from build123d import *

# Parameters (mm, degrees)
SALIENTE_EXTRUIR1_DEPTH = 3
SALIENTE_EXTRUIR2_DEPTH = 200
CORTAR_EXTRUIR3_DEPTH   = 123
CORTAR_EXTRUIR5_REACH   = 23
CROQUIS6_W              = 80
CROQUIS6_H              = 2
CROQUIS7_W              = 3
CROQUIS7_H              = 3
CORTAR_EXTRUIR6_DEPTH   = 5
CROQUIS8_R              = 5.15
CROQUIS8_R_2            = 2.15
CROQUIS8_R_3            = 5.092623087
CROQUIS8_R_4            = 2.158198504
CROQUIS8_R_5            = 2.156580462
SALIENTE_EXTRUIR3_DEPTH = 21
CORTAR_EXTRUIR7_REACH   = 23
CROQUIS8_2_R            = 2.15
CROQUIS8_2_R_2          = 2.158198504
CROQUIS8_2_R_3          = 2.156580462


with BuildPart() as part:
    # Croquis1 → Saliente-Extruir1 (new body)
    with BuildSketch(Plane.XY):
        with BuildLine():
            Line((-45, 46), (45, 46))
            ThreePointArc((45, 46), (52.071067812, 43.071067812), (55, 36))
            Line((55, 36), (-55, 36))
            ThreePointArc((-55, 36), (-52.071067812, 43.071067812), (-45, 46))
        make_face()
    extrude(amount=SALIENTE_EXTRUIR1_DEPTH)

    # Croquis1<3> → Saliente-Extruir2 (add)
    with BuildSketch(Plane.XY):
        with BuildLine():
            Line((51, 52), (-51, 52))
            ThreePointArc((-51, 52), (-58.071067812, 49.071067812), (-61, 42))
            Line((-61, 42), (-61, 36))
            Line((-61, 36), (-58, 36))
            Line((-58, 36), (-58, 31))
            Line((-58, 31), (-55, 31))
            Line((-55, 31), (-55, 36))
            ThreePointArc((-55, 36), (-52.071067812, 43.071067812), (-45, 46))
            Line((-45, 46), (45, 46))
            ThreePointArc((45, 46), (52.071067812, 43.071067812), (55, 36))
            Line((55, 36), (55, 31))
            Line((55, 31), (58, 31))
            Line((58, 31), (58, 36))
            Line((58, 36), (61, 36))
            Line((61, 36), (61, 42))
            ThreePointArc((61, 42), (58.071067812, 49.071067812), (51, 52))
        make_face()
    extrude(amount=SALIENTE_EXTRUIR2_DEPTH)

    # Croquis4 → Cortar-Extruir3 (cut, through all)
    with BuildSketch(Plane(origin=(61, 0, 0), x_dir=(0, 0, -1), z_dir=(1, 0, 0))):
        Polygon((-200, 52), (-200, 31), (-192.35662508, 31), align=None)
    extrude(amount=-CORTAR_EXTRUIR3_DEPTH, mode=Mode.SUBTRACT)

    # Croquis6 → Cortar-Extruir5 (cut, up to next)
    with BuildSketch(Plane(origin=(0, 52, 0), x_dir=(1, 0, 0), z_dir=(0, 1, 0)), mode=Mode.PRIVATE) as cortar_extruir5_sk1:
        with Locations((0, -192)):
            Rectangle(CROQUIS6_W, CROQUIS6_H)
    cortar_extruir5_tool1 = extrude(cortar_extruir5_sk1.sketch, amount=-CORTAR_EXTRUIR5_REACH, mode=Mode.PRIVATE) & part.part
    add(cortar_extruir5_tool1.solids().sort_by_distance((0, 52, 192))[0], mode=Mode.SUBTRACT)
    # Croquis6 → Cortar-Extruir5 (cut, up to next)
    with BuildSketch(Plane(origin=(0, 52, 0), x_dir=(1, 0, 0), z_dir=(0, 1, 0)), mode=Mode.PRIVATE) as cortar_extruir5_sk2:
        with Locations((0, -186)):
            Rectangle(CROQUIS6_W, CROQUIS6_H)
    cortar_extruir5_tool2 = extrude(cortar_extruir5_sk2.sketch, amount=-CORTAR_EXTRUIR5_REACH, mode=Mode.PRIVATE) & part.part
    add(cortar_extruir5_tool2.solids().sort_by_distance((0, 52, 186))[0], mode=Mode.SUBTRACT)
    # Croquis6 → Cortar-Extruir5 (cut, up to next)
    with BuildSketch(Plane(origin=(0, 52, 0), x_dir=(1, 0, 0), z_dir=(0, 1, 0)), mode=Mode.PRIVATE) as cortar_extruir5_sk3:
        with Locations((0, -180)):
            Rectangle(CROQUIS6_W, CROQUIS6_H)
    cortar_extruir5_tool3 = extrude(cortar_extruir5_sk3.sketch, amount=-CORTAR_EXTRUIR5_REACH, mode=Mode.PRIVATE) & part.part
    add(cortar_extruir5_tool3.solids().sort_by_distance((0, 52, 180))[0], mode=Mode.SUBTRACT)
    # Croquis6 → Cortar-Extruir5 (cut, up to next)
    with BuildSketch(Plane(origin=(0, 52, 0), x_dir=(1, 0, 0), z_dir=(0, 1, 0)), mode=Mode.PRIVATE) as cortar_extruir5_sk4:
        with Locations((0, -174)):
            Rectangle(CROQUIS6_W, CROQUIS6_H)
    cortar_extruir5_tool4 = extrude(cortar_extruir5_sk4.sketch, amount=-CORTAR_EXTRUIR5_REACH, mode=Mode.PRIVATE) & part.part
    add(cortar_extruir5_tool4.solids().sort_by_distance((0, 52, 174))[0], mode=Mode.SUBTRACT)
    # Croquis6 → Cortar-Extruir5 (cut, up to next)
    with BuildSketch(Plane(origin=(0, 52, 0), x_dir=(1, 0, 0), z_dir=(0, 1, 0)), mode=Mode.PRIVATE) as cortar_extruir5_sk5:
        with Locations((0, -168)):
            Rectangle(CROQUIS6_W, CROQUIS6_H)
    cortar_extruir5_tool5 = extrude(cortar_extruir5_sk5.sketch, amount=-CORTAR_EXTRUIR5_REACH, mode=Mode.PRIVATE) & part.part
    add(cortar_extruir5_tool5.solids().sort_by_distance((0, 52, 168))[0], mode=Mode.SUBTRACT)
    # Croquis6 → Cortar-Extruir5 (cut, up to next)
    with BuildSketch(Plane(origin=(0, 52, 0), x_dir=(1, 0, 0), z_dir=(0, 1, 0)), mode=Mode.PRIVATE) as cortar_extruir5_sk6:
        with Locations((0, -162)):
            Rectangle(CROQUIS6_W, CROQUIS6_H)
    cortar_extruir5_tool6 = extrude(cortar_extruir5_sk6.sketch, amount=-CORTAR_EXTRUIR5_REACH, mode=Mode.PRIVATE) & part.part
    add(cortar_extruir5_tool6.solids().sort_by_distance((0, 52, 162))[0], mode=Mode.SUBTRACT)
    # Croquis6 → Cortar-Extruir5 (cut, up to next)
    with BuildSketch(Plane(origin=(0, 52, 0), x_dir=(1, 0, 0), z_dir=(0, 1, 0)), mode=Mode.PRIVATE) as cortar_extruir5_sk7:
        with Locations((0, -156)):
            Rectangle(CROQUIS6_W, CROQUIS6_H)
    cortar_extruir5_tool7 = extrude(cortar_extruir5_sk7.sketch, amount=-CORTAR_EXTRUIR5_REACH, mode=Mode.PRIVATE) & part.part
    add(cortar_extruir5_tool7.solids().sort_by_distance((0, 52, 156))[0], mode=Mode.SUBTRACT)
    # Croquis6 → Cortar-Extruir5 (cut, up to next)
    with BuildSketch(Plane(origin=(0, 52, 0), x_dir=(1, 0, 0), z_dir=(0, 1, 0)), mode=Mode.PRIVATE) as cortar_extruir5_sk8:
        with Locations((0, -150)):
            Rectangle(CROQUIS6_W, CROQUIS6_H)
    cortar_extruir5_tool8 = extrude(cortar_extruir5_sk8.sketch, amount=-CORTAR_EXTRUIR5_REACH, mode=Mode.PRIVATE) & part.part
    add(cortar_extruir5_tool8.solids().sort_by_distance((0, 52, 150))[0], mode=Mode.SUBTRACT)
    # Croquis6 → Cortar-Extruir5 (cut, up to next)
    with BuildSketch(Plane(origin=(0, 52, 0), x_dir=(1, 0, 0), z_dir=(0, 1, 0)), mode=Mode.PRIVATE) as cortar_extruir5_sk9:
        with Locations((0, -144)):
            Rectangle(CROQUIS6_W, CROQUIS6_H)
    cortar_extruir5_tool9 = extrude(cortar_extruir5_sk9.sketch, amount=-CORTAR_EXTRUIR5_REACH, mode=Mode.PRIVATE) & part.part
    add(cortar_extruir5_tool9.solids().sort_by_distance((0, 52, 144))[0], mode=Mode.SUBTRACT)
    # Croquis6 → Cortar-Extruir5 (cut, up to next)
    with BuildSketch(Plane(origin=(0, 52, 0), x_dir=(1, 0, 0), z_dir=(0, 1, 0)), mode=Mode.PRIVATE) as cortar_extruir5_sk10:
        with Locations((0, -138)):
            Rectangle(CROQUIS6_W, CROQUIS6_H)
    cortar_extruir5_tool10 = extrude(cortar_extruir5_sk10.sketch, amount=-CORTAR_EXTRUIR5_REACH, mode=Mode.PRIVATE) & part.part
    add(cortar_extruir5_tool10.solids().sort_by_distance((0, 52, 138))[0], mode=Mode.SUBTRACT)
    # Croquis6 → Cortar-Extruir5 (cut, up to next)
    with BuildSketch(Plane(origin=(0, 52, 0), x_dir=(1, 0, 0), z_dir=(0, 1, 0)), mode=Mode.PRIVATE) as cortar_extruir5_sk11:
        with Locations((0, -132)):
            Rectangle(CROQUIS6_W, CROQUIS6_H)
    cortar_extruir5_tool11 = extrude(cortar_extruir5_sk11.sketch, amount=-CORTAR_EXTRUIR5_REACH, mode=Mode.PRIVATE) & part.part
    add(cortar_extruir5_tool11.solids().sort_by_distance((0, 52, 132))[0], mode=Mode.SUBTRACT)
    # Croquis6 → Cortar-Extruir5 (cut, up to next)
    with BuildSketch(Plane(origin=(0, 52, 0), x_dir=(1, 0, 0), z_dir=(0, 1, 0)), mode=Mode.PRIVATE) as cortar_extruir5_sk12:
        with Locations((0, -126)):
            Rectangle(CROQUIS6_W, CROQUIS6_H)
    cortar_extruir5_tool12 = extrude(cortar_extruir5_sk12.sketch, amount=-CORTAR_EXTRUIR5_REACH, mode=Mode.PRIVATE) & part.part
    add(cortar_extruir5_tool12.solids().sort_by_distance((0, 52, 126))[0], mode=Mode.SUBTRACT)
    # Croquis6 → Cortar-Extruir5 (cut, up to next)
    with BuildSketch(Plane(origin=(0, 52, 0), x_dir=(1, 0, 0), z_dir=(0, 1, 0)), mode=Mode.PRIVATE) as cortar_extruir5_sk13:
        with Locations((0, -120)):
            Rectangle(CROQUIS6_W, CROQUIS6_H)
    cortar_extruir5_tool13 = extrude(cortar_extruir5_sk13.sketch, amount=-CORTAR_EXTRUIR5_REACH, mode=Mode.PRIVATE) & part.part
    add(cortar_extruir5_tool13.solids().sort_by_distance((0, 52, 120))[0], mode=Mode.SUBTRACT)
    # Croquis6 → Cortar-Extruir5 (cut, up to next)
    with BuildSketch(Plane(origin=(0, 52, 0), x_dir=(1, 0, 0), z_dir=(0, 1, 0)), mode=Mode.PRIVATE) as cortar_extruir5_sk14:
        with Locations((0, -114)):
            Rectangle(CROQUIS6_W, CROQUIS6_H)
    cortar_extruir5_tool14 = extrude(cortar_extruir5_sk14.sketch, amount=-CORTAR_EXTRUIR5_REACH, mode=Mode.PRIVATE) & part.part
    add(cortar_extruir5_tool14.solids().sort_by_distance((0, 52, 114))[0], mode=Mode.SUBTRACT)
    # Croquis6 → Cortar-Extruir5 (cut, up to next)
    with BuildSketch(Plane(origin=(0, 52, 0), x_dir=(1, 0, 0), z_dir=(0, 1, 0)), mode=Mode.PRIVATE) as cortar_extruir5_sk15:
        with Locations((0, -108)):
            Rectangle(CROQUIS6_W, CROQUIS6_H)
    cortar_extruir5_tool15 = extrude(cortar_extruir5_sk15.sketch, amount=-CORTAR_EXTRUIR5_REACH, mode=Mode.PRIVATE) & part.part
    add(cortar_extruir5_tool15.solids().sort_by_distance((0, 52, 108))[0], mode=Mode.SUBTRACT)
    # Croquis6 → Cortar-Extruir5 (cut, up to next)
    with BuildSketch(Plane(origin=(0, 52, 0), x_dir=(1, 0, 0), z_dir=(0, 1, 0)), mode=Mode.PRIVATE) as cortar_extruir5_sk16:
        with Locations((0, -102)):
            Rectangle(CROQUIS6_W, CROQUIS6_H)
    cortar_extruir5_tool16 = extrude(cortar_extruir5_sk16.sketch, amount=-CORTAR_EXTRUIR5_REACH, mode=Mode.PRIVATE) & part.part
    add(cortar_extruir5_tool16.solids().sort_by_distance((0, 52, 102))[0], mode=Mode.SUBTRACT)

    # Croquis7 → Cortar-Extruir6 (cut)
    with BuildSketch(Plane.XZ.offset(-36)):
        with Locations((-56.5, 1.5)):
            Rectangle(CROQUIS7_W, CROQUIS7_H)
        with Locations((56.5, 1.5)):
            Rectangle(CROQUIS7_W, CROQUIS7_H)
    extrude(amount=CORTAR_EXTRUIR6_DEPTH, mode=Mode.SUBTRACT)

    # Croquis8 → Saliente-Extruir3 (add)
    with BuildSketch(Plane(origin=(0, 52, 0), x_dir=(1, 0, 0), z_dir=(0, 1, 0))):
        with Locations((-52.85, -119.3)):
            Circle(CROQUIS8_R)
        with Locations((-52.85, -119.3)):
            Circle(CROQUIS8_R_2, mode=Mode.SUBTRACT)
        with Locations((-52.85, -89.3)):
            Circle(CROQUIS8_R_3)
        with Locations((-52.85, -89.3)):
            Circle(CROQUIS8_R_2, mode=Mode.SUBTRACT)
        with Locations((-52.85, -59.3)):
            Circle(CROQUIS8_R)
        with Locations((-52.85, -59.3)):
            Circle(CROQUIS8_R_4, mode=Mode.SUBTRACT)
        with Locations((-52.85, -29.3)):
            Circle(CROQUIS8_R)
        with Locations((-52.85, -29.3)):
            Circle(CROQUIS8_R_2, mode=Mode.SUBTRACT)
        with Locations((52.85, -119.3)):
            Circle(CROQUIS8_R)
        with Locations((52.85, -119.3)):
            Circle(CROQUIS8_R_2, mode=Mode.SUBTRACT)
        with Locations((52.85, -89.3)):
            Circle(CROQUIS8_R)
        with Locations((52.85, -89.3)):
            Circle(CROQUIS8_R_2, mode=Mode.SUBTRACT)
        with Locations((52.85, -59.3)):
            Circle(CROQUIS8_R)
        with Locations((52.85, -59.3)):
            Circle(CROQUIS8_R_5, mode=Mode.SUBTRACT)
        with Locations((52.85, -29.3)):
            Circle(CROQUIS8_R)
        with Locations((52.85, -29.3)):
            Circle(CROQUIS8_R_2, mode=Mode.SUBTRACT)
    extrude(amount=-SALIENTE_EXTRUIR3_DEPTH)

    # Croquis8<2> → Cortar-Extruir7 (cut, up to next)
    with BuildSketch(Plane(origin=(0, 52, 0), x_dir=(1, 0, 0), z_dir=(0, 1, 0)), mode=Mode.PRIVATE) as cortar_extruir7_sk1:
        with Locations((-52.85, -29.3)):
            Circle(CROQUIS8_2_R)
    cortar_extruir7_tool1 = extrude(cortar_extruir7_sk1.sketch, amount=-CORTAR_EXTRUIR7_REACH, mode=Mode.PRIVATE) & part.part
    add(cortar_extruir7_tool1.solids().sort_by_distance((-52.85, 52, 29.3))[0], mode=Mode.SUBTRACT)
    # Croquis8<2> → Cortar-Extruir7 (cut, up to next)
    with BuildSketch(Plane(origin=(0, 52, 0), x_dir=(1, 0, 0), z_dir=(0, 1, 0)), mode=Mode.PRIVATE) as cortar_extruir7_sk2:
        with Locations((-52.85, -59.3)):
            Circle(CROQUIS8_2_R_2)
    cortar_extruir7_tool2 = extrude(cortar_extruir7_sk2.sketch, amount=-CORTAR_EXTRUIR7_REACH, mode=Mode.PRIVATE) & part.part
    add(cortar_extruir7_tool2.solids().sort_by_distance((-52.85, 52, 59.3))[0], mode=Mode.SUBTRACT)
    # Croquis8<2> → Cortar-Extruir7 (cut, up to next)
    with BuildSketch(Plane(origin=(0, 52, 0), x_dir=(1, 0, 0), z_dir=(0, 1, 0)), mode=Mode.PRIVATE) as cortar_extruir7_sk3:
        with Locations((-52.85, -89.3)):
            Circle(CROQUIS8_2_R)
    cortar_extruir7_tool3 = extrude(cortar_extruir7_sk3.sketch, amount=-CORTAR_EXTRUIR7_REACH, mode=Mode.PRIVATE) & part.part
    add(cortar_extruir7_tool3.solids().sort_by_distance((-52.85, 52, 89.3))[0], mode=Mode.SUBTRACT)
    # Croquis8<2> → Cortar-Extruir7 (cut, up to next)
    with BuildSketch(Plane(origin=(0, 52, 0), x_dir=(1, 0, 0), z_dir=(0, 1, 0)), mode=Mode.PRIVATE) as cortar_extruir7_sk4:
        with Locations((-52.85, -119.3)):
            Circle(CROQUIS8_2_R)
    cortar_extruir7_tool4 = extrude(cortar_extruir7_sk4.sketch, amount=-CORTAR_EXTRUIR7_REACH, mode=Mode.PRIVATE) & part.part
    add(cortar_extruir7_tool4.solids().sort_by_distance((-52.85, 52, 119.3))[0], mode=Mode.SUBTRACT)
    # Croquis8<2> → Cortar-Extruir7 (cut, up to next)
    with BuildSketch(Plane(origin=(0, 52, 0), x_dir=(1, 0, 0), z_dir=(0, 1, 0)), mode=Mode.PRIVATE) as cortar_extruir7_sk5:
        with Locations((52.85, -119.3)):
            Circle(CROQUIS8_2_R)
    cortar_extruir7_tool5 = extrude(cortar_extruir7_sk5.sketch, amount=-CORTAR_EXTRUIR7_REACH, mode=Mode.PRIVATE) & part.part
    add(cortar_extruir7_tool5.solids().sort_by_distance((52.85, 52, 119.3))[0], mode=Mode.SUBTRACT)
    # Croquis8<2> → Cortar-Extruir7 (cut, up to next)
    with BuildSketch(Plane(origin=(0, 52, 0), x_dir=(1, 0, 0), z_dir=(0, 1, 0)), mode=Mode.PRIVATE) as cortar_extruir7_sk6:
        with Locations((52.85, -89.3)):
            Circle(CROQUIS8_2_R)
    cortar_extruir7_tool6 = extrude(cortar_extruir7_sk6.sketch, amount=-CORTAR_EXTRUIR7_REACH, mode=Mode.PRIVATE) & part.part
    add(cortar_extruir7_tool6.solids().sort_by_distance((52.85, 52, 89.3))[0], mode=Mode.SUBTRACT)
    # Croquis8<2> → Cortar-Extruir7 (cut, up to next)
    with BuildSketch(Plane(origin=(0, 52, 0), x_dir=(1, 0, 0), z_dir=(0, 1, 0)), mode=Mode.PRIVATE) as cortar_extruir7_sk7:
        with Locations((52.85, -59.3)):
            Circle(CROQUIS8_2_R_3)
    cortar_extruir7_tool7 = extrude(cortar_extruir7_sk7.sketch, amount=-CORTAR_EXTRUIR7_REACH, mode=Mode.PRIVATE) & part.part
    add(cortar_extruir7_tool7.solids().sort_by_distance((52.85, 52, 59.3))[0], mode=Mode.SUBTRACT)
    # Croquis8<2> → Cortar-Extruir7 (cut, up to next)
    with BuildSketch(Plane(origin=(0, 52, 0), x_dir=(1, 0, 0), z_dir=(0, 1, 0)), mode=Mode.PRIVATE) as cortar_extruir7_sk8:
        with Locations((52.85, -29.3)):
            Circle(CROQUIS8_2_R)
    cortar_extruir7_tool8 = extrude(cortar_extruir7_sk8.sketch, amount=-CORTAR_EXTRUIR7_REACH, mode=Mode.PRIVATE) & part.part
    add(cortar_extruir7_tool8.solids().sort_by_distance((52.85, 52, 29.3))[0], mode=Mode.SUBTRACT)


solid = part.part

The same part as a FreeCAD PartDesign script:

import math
import FreeCAD as App
import Part
import Sketcher
Q = App.Units.Quantity


def add_polygon(sketch, points):
    """Adds a closed chain of lines whose ends are joined by coincident constraints."""
    first, n = sketch.GeometryCount, len(points)
    for a, b in zip(points, points[1:] + points[:1]):
        sketch.addGeometry(Part.LineSegment(App.Vector(*a, 0), App.Vector(*b, 0)), False)
    for i in range(n):
        sketch.addConstraint(Sketcher.Constraint("Coincident", first + i, 2, first + (i + 1) % n, 1))

doc = App.newDocument("Part")
body = doc.addObject("PartDesign::Body", "Body")

# Sketch on XY plane
sketch1 = body.newObject("Sketcher::SketchObject", "Sketch")
sketch1.AttachmentSupport = (doc.getObject("XY_Plane"), [""])
sketch1.MapMode = "FlatFace"
sketch1.addGeometry([
    Part.LineSegment(App.Vector(45, 46, 0), App.Vector(-45, 46, 0)),
    Part.ArcOfCircle(Part.Circle(App.Vector(-45, 36, 0), App.Vector(0, 0, 1), 10), math.radians(90), math.radians(180)),
    Part.LineSegment(App.Vector(-55, 36, 0), App.Vector(55, 36, 0)),
    Part.ArcOfCircle(Part.Circle(App.Vector(45, 36, 0), App.Vector(0, 0, 1), 10), math.radians(0), math.radians(90)),
], False)
sketch1.addConstraint([
    Sketcher.Constraint("Tangent", 0, 2, 1, 1),
    Sketcher.Constraint("Coincident", 1, 2, 2, 1),
    Sketcher.Constraint("Coincident", 2, 2, 3, 1),
    Sketcher.Constraint("Tangent", 3, 2, 0, 1),
    Sketcher.Constraint("Horizontal", 0),
    Sketcher.Constraint("Horizontal", 2),
    Sketcher.Constraint("Equal", 1, 3),
    Sketcher.Constraint("Horizontal", 3, 3, 1, 2),
    Sketcher.Constraint("Radius", 1, Q("10 mm")),
    Sketcher.Constraint("DistanceX", 0, 2, 0, 1, Q("90 mm")),
    Sketcher.Constraint("DistanceX", 1, 3, -1, 1, Q("45 mm")),
    Sketcher.Constraint("DistanceY", -1, 1, 1, 3, Q("36 mm")),
])
pad1 = body.newObject("PartDesign::Pad", "Pad")
pad1.Profile = sketch1
pad1.Length = 3

# Sketch on XY plane
sketch2 = body.newObject("Sketcher::SketchObject", "Sketch001")
sketch2.AttachmentSupport = (doc.getObject("XY_Plane"), [""])
sketch2.MapMode = "FlatFace"
sketch2.addGeometry([
    Part.LineSegment(App.Vector(51, 52, 0), App.Vector(-51, 52, 0)),  # 0
    Part.ArcOfCircle(Part.Circle(App.Vector(-51, 42, 0), App.Vector(0, 0, 1), 10), math.radians(90), math.radians(180)),  # 1
    Part.LineSegment(App.Vector(-61, 42, 0), App.Vector(-61, 36, 0)),  # 2
    Part.LineSegment(App.Vector(-61, 36, 0), App.Vector(-58, 36, 0)),  # 3
    Part.LineSegment(App.Vector(-58, 36, 0), App.Vector(-58, 31, 0)),  # 4
    Part.LineSegment(App.Vector(-58, 31, 0), App.Vector(-55, 31, 0)),  # 5
    Part.LineSegment(App.Vector(-55, 31, 0), App.Vector(-55, 36, 0)),  # 6
    Part.ArcOfCircle(Part.Circle(App.Vector(-45, 36, 0), App.Vector(0, 0, 1), 10), math.radians(90), math.radians(180)),  # 7
    Part.LineSegment(App.Vector(-45, 46, 0), App.Vector(45, 46, 0)),  # 8
    Part.ArcOfCircle(Part.Circle(App.Vector(45, 36, 0), App.Vector(0, 0, 1), 10), math.radians(0), math.radians(90)),  # 9
    Part.LineSegment(App.Vector(55, 36, 0), App.Vector(55, 31, 0)),  # 10
    Part.LineSegment(App.Vector(55, 31, 0), App.Vector(58, 31, 0)),  # 11
    Part.LineSegment(App.Vector(58, 31, 0), App.Vector(58, 36, 0)),  # 12
    Part.LineSegment(App.Vector(58, 36, 0), App.Vector(61, 36, 0)),  # 13
    Part.LineSegment(App.Vector(61, 36, 0), App.Vector(61, 42, 0)),  # 14
    Part.ArcOfCircle(Part.Circle(App.Vector(51, 42, 0), App.Vector(0, 0, 1), 10), math.radians(0), math.radians(90)),  # 15
], False)
sketch2.addConstraint([
    Sketcher.Constraint("Tangent", 0, 2, 1, 1),
    Sketcher.Constraint("Tangent", 1, 2, 2, 1),
    Sketcher.Constraint("Coincident", 2, 2, 3, 1),
    Sketcher.Constraint("Coincident", 3, 2, 4, 1),
    Sketcher.Constraint("Coincident", 4, 2, 5, 1),
    Sketcher.Constraint("Coincident", 5, 2, 6, 1),
    Sketcher.Constraint("Tangent", 6, 2, 7, 2),
    Sketcher.Constraint("Tangent", 7, 1, 8, 1),
    Sketcher.Constraint("Tangent", 8, 2, 9, 2),
    Sketcher.Constraint("Tangent", 9, 1, 10, 1),
    Sketcher.Constraint("Coincident", 10, 2, 11, 1),
    Sketcher.Constraint("Coincident", 11, 2, 12, 1),
    Sketcher.Constraint("Coincident", 12, 2, 13, 1),
    Sketcher.Constraint("Coincident", 13, 2, 14, 1),
    Sketcher.Constraint("Tangent", 14, 2, 15, 1),
    Sketcher.Constraint("Tangent", 15, 2, 0, 1),
    Sketcher.Constraint("Horizontal", 0),
    Sketcher.Constraint("Vertical", 2),
    Sketcher.Constraint("Horizontal", 3),
    Sketcher.Constraint("Vertical", 4),
    Sketcher.Constraint("Horizontal", 5),
    Sketcher.Constraint("Vertical", 6),
    Sketcher.Constraint("Horizontal", 8),
    Sketcher.Constraint("Vertical", 10),
    Sketcher.Constraint("Horizontal", 11),
    Sketcher.Constraint("Vertical", 12),
    Sketcher.Constraint("Horizontal", 13),
    Sketcher.Constraint("Vertical", 14),
    Sketcher.Constraint("Equal", 1, 7),
    Sketcher.Constraint("Equal", 7, 9),
    Sketcher.Constraint("Equal", 9, 15),
    Sketcher.Constraint("Symmetric", 5, 2, 10, 2, -2),
    Sketcher.Constraint("Symmetric", 3, 2, 12, 2, -2),
    Sketcher.Constraint("Horizontal", 9, 3, 2, 2),
    Sketcher.Constraint("Equal", 3, 5),
    Sketcher.Constraint("Equal", 11, 13),
    Sketcher.Constraint("Radius", 1, Q("10 mm")),
    Sketcher.Constraint("DistanceX", 0, 2, 0, 1, Q("102 mm")),
    Sketcher.Constraint("DistanceX", 3, 1, 3, 2, Q("3 mm")),
    Sketcher.Constraint("DistanceY", 2, 2, 2, 1, Q("6 mm")),
    Sketcher.Constraint("DistanceY", 4, 2, 4, 1, Q("5 mm")),
    Sketcher.Constraint("DistanceY", -1, 1, 1, 3, Q("42 mm")),
])
pad2 = body.newObject("PartDesign::Pad", "Pad001")
pad2.Profile = sketch2
pad2.Length = 200

# Sketch on YZ plane
sketch3 = body.newObject("Sketcher::SketchObject", "Sketch002")
sketch3.AttachmentSupport = (doc.getObject("YZ_Plane"), [""])
sketch3.MapMode = "FlatFace"
sketch3.AttachmentOffset = App.Placement(App.Vector(0, 0, 61), App.Rotation())
add_polygon(sketch3, [(52, 200), (31, 200), (31, 192)])  # lines 0-2
sketch3.addConstraint([
    Sketcher.Constraint("Horizontal", 0),
    Sketcher.Constraint("Vertical", 1),
    Sketcher.Constraint("DistanceX", 0, 2, 0, 1, Q("21 mm")),
    Sketcher.Constraint("Angle", 2, Q("20 deg")),
    Sketcher.Constraint("DistanceX", -1, 1, 0, 2, Q("31 mm")),
    Sketcher.Constraint("DistanceY", -1, 1, 0, 2, Q("200 mm")),
])
pocket1 = body.newObject("PartDesign::Pocket", "Pocket")
pocket1.Profile = sketch3
pocket1.Type = "ThroughAll"

# Sketch on XZ plane
sketch4 = body.newObject("Sketcher::SketchObject", "Sketch003")
sketch4.AttachmentSupport = (doc.getObject("XZ_Plane"), [""])
sketch4.MapMode = "FlatFace"
sketch4.AttachmentOffset = App.Placement(App.Vector(0, 0, -52), App.Rotation())
add_polygon(sketch4, [(-40, 191), (-40, 193), (40, 193), (40, 191)])  # lines 0-3
sketch4.addConstraint([
    Sketcher.Constraint("Vertical", 0),
    Sketcher.Constraint("Horizontal", 1),
    Sketcher.Constraint("Vertical", 2),
    Sketcher.Constraint("Horizontal", 3),
    Sketcher.Constraint("DistanceX", 1, 1, 1, 2, Q("80 mm")),
    Sketcher.Constraint("DistanceY", 0, 1, 0, 2, Q("2 mm")),
    Sketcher.Constraint("DistanceX", 0, 2, -1, 1, Q("40 mm")),
    Sketcher.Constraint("DistanceY", -1, 1, 0, 2, Q("193 mm")),
])
pocket2 = body.newObject("PartDesign::Pocket", "Pocket001")
pocket2.Profile = sketch4
pocket2.Type = "UpToFirst"
pocket2.Reversed = True

# Sketch on XZ plane
sketch5 = body.newObject("Sketcher::SketchObject", "Sketch004")
sketch5.AttachmentSupport = (doc.getObject("XZ_Plane"), [""])
sketch5.MapMode = "FlatFace"
sketch5.AttachmentOffset = App.Placement(App.Vector(0, 0, -52), App.Rotation())
add_polygon(sketch5, [(-40, 185), (-40, 187), (40, 187), (40, 185)])  # lines 0-3
sketch5.addConstraint([
    Sketcher.Constraint("Vertical", 0),
    Sketcher.Constraint("Horizontal", 1),
    Sketcher.Constraint("Vertical", 2),
    Sketcher.Constraint("Horizontal", 3),
    Sketcher.Constraint("DistanceX", 1, 1, 1, 2, Q("80 mm")),
    Sketcher.Constraint("DistanceY", 0, 1, 0, 2, Q("2 mm")),
    Sketcher.Constraint("DistanceX", 0, 2, -1, 1, Q("40 mm")),
    Sketcher.Constraint("DistanceY", -1, 1, 0, 2, Q("187 mm")),
])
pocket3 = body.newObject("PartDesign::Pocket", "Pocket002")
pocket3.Profile = sketch5
pocket3.Type = "UpToFirst"
pocket3.Reversed = True

# Sketch on XZ plane
sketch6 = body.newObject("Sketcher::SketchObject", "Sketch005")
sketch6.AttachmentSupport = (doc.getObject("XZ_Plane"), [""])
sketch6.MapMode = "FlatFace"
sketch6.AttachmentOffset = App.Placement(App.Vector(0, 0, -52), App.Rotation())
add_polygon(sketch6, [(-40, 179), (-40, 181), (40, 181), (40, 179)])  # lines 0-3
sketch6.addConstraint([
    Sketcher.Constraint("Vertical", 0),
    Sketcher.Constraint("Horizontal", 1),
    Sketcher.Constraint("Vertical", 2),
    Sketcher.Constraint("Horizontal", 3),
    Sketcher.Constraint("DistanceX", 1, 1, 1, 2, Q("80 mm")),
    Sketcher.Constraint("DistanceY", 0, 1, 0, 2, Q("2 mm")),
    Sketcher.Constraint("DistanceX", 0, 2, -1, 1, Q("40 mm")),
    Sketcher.Constraint("DistanceY", -1, 1, 0, 2, Q("181 mm")),
])
pocket4 = body.newObject("PartDesign::Pocket", "Pocket003")
pocket4.Profile = sketch6
pocket4.Type = "UpToFirst"
pocket4.Reversed = True

# Sketch on XZ plane
sketch7 = body.newObject("Sketcher::SketchObject", "Sketch006")
sketch7.AttachmentSupport = (doc.getObject("XZ_Plane"), [""])
sketch7.MapMode = "FlatFace"
sketch7.AttachmentOffset = App.Placement(App.Vector(0, 0, -52), App.Rotation())
add_polygon(sketch7, [(-40, 173), (-40, 175), (40, 175), (40, 173)])  # lines 0-3
sketch7.addConstraint([
    Sketcher.Constraint("Vertical", 0),
    Sketcher.Constraint("Horizontal", 1),
    Sketcher.Constraint("Vertical", 2),
    Sketcher.Constraint("Horizontal", 3),
    Sketcher.Constraint("DistanceX", 1, 1, 1, 2, Q("80 mm")),
    Sketcher.Constraint("DistanceY", 0, 1, 0, 2, Q("2 mm")),
    Sketcher.Constraint("DistanceX", 0, 2, -1, 1, Q("40 mm")),
    Sketcher.Constraint("DistanceY", -1, 1, 0, 2, Q("175 mm")),
])
pocket5 = body.newObject("PartDesign::Pocket", "Pocket004")
pocket5.Profile = sketch7
pocket5.Type = "UpToFirst"
pocket5.Reversed = True

# Sketch on XZ plane
sketch8 = body.newObject("Sketcher::SketchObject", "Sketch007")
sketch8.AttachmentSupport = (doc.getObject("XZ_Plane"), [""])
sketch8.MapMode = "FlatFace"
sketch8.AttachmentOffset = App.Placement(App.Vector(0, 0, -52), App.Rotation())
add_polygon(sketch8, [(-40, 167), (-40, 169), (40, 169), (40, 167)])  # lines 0-3
sketch8.addConstraint([
    Sketcher.Constraint("Vertical", 0),
    Sketcher.Constraint("Horizontal", 1),
    Sketcher.Constraint("Vertical", 2),
    Sketcher.Constraint("Horizontal", 3),
    Sketcher.Constraint("DistanceX", 1, 1, 1, 2, Q("80 mm")),
    Sketcher.Constraint("DistanceY", 0, 1, 0, 2, Q("2 mm")),
    Sketcher.Constraint("DistanceX", 0, 2, -1, 1, Q("40 mm")),
    Sketcher.Constraint("DistanceY", -1, 1, 0, 2, Q("169 mm")),
])
pocket6 = body.newObject("PartDesign::Pocket", "Pocket005")
pocket6.Profile = sketch8
pocket6.Type = "UpToFirst"
pocket6.Reversed = True

# Sketch on XZ plane
sketch9 = body.newObject("Sketcher::SketchObject", "Sketch008")
sketch9.AttachmentSupport = (doc.getObject("XZ_Plane"), [""])
sketch9.MapMode = "FlatFace"
sketch9.AttachmentOffset = App.Placement(App.Vector(0, 0, -52), App.Rotation())
add_polygon(sketch9, [(-40, 161), (-40, 163), (40, 163), (40, 161)])  # lines 0-3
sketch9.addConstraint([
    Sketcher.Constraint("Vertical", 0),
    Sketcher.Constraint("Horizontal", 1),
    Sketcher.Constraint("Vertical", 2),
    Sketcher.Constraint("Horizontal", 3),
    Sketcher.Constraint("DistanceX", 1, 1, 1, 2, Q("80 mm")),
    Sketcher.Constraint("DistanceY", 0, 1, 0, 2, Q("2 mm")),
    Sketcher.Constraint("DistanceX", 0, 2, -1, 1, Q("40 mm")),
    Sketcher.Constraint("DistanceY", -1, 1, 0, 2, Q("163 mm")),
])
pocket7 = body.newObject("PartDesign::Pocket", "Pocket006")
pocket7.Profile = sketch9
pocket7.Type = "UpToFirst"
pocket7.Reversed = True

# Sketch on XZ plane
sketch10 = body.newObject("Sketcher::SketchObject", "Sketch009")
sketch10.AttachmentSupport = (doc.getObject("XZ_Plane"), [""])
sketch10.MapMode = "FlatFace"
sketch10.AttachmentOffset = App.Placement(App.Vector(0, 0, -52), App.Rotation())
add_polygon(sketch10, [(-40, 155), (-40, 157), (40, 157), (40, 155)])  # lines 0-3
sketch10.addConstraint([
    Sketcher.Constraint("Vertical", 0),
    Sketcher.Constraint("Horizontal", 1),
    Sketcher.Constraint("Vertical", 2),
    Sketcher.Constraint("Horizontal", 3),
    Sketcher.Constraint("DistanceX", 1, 1, 1, 2, Q("80 mm")),
    Sketcher.Constraint("DistanceY", 0, 1, 0, 2, Q("2 mm")),
    Sketcher.Constraint("DistanceX", 0, 2, -1, 1, Q("40 mm")),
    Sketcher.Constraint("DistanceY", -1, 1, 0, 2, Q("157 mm")),
])
pocket8 = body.newObject("PartDesign::Pocket", "Pocket007")
pocket8.Profile = sketch10
pocket8.Type = "UpToFirst"
pocket8.Reversed = True

# Sketch on XZ plane
sketch11 = body.newObject("Sketcher::SketchObject", "Sketch010")
sketch11.AttachmentSupport = (doc.getObject("XZ_Plane"), [""])
sketch11.MapMode = "FlatFace"
sketch11.AttachmentOffset = App.Placement(App.Vector(0, 0, -52), App.Rotation())
add_polygon(sketch11, [(-40, 149), (-40, 151), (40, 151), (40, 149)])  # lines 0-3
sketch11.addConstraint([
    Sketcher.Constraint("Vertical", 0),
    Sketcher.Constraint("Horizontal", 1),
    Sketcher.Constraint("Vertical", 2),
    Sketcher.Constraint("Horizontal", 3),
    Sketcher.Constraint("DistanceX", 1, 1, 1, 2, Q("80 mm")),
    Sketcher.Constraint("DistanceY", 0, 1, 0, 2, Q("2 mm")),
    Sketcher.Constraint("DistanceX", 0, 2, -1, 1, Q("40 mm")),
    Sketcher.Constraint("DistanceY", -1, 1, 0, 2, Q("151 mm")),
])
pocket9 = body.newObject("PartDesign::Pocket", "Pocket008")
pocket9.Profile = sketch11
pocket9.Type = "UpToFirst"
pocket9.Reversed = True

# Sketch on XZ plane
sketch12 = body.newObject("Sketcher::SketchObject", "Sketch011")
sketch12.AttachmentSupport = (doc.getObject("XZ_Plane"), [""])
sketch12.MapMode = "FlatFace"
sketch12.AttachmentOffset = App.Placement(App.Vector(0, 0, -52), App.Rotation())
add_polygon(sketch12, [(-40, 143), (-40, 145), (40, 145), (40, 143)])  # lines 0-3
sketch12.addConstraint([
    Sketcher.Constraint("Vertical", 0),
    Sketcher.Constraint("Horizontal", 1),
    Sketcher.Constraint("Vertical", 2),
    Sketcher.Constraint("Horizontal", 3),
    Sketcher.Constraint("DistanceX", 1, 1, 1, 2, Q("80 mm")),
    Sketcher.Constraint("DistanceY", 0, 1, 0, 2, Q("2 mm")),
    Sketcher.Constraint("DistanceX", 0, 2, -1, 1, Q("40 mm")),
    Sketcher.Constraint("DistanceY", -1, 1, 0, 2, Q("145 mm")),
])
pocket10 = body.newObject("PartDesign::Pocket", "Pocket009")
pocket10.Profile = sketch12
pocket10.Type = "UpToFirst"
pocket10.Reversed = True

# Sketch on XZ plane
sketch13 = body.newObject("Sketcher::SketchObject", "Sketch012")
sketch13.AttachmentSupport = (doc.getObject("XZ_Plane"), [""])
sketch13.MapMode = "FlatFace"
sketch13.AttachmentOffset = App.Placement(App.Vector(0, 0, -52), App.Rotation())
add_polygon(sketch13, [(-40, 137), (-40, 139), (40, 139), (40, 137)])  # lines 0-3
sketch13.addConstraint([
    Sketcher.Constraint("Vertical", 0),
    Sketcher.Constraint("Horizontal", 1),
    Sketcher.Constraint("Vertical", 2),
    Sketcher.Constraint("Horizontal", 3),
    Sketcher.Constraint("DistanceX", 1, 1, 1, 2, Q("80 mm")),
    Sketcher.Constraint("DistanceY", 0, 1, 0, 2, Q("2 mm")),
    Sketcher.Constraint("DistanceX", 0, 2, -1, 1, Q("40 mm")),
    Sketcher.Constraint("DistanceY", -1, 1, 0, 2, Q("139 mm")),
])
pocket11 = body.newObject("PartDesign::Pocket", "Pocket010")
pocket11.Profile = sketch13
pocket11.Type = "UpToFirst"
pocket11.Reversed = True

# Sketch on XZ plane
sketch14 = body.newObject("Sketcher::SketchObject", "Sketch013")
sketch14.AttachmentSupport = (doc.getObject("XZ_Plane"), [""])
sketch14.MapMode = "FlatFace"
sketch14.AttachmentOffset = App.Placement(App.Vector(0, 0, -52), App.Rotation())
add_polygon(sketch14, [(-40, 131), (-40, 133), (40, 133), (40, 131)])  # lines 0-3
sketch14.addConstraint([
    Sketcher.Constraint("Vertical", 0),
    Sketcher.Constraint("Horizontal", 1),
    Sketcher.Constraint("Vertical", 2),
    Sketcher.Constraint("Horizontal", 3),
    Sketcher.Constraint("DistanceX", 1, 1, 1, 2, Q("80 mm")),
    Sketcher.Constraint("DistanceY", 0, 1, 0, 2, Q("2 mm")),
    Sketcher.Constraint("DistanceX", 0, 2, -1, 1, Q("40 mm")),
    Sketcher.Constraint("DistanceY", -1, 1, 0, 2, Q("133 mm")),
])
pocket12 = body.newObject("PartDesign::Pocket", "Pocket011")
pocket12.Profile = sketch14
pocket12.Type = "UpToFirst"
pocket12.Reversed = True

# Sketch on XZ plane
sketch15 = body.newObject("Sketcher::SketchObject", "Sketch014")
sketch15.AttachmentSupport = (doc.getObject("XZ_Plane"), [""])
sketch15.MapMode = "FlatFace"
sketch15.AttachmentOffset = App.Placement(App.Vector(0, 0, -52), App.Rotation())
add_polygon(sketch15, [(-40, 125), (-40, 127), (40, 127), (40, 125)])  # lines 0-3
sketch15.addConstraint([
    Sketcher.Constraint("Vertical", 0),
    Sketcher.Constraint("Horizontal", 1),
    Sketcher.Constraint("Vertical", 2),
    Sketcher.Constraint("Horizontal", 3),
    Sketcher.Constraint("DistanceX", 1, 1, 1, 2, Q("80 mm")),
    Sketcher.Constraint("DistanceY", 0, 1, 0, 2, Q("2 mm")),
    Sketcher.Constraint("DistanceX", 0, 2, -1, 1, Q("40 mm")),
    Sketcher.Constraint("DistanceY", -1, 1, 0, 2, Q("127 mm")),
])
pocket13 = body.newObject("PartDesign::Pocket", "Pocket012")
pocket13.Profile = sketch15
pocket13.Type = "UpToFirst"
pocket13.Reversed = True

# Sketch on XZ plane
sketch16 = body.newObject("Sketcher::SketchObject", "Sketch015")
sketch16.AttachmentSupport = (doc.getObject("XZ_Plane"), [""])
sketch16.MapMode = "FlatFace"
sketch16.AttachmentOffset = App.Placement(App.Vector(0, 0, -52), App.Rotation())
add_polygon(sketch16, [(-40, 119), (-40, 121), (40, 121), (40, 119)])  # lines 0-3
sketch16.addConstraint([
    Sketcher.Constraint("Vertical", 0),
    Sketcher.Constraint("Horizontal", 1),
    Sketcher.Constraint("Vertical", 2),
    Sketcher.Constraint("Horizontal", 3),
    Sketcher.Constraint("DistanceX", 1, 1, 1, 2, Q("80 mm")),
    Sketcher.Constraint("DistanceY", 0, 1, 0, 2, Q("2 mm")),
    Sketcher.Constraint("DistanceX", 0, 2, -1, 1, Q("40 mm")),
    Sketcher.Constraint("DistanceY", -1, 1, 0, 2, Q("121 mm")),
])
pocket14 = body.newObject("PartDesign::Pocket", "Pocket013")
pocket14.Profile = sketch16
pocket14.Type = "UpToFirst"
pocket14.Reversed = True

# Sketch on XZ plane
sketch17 = body.newObject("Sketcher::SketchObject", "Sketch016")
sketch17.AttachmentSupport = (doc.getObject("XZ_Plane"), [""])
sketch17.MapMode = "FlatFace"
sketch17.AttachmentOffset = App.Placement(App.Vector(0, 0, -52), App.Rotation())
add_polygon(sketch17, [(-40, 113), (-40, 115), (40, 115), (40, 113)])  # lines 0-3
sketch17.addConstraint([
    Sketcher.Constraint("Vertical", 0),
    Sketcher.Constraint("Horizontal", 1),
    Sketcher.Constraint("Vertical", 2),
    Sketcher.Constraint("Horizontal", 3),
    Sketcher.Constraint("DistanceX", 1, 1, 1, 2, Q("80 mm")),
    Sketcher.Constraint("DistanceY", 0, 1, 0, 2, Q("2 mm")),
    Sketcher.Constraint("DistanceX", 0, 2, -1, 1, Q("40 mm")),
    Sketcher.Constraint("DistanceY", -1, 1, 0, 2, Q("115 mm")),
])
pocket15 = body.newObject("PartDesign::Pocket", "Pocket014")
pocket15.Profile = sketch17
pocket15.Type = "UpToFirst"
pocket15.Reversed = True

# Sketch on XZ plane
sketch18 = body.newObject("Sketcher::SketchObject", "Sketch017")
sketch18.AttachmentSupport = (doc.getObject("XZ_Plane"), [""])
sketch18.MapMode = "FlatFace"
sketch18.AttachmentOffset = App.Placement(App.Vector(0, 0, -52), App.Rotation())
add_polygon(sketch18, [(-40, 107), (-40, 109), (40, 109), (40, 107)])  # lines 0-3
sketch18.addConstraint([
    Sketcher.Constraint("Vertical", 0),
    Sketcher.Constraint("Horizontal", 1),
    Sketcher.Constraint("Vertical", 2),
    Sketcher.Constraint("Horizontal", 3),
    Sketcher.Constraint("DistanceX", 1, 1, 1, 2, Q("80 mm")),
    Sketcher.Constraint("DistanceY", 0, 1, 0, 2, Q("2 mm")),
    Sketcher.Constraint("DistanceX", 0, 2, -1, 1, Q("40 mm")),
    Sketcher.Constraint("DistanceY", -1, 1, 0, 2, Q("109 mm")),
])
pocket16 = body.newObject("PartDesign::Pocket", "Pocket015")
pocket16.Profile = sketch18
pocket16.Type = "UpToFirst"
pocket16.Reversed = True

# Sketch on XZ plane
sketch19 = body.newObject("Sketcher::SketchObject", "Sketch018")
sketch19.AttachmentSupport = (doc.getObject("XZ_Plane"), [""])
sketch19.MapMode = "FlatFace"
sketch19.AttachmentOffset = App.Placement(App.Vector(0, 0, -52), App.Rotation())
add_polygon(sketch19, [(-40, 101), (-40, 103), (40, 103), (40, 101)])  # lines 0-3
sketch19.addConstraint([
    Sketcher.Constraint("Vertical", 0),
    Sketcher.Constraint("Horizontal", 1),
    Sketcher.Constraint("Vertical", 2),
    Sketcher.Constraint("Horizontal", 3),
    Sketcher.Constraint("DistanceX", 1, 1, 1, 2, Q("80 mm")),
    Sketcher.Constraint("DistanceY", 0, 1, 0, 2, Q("2 mm")),
    Sketcher.Constraint("DistanceX", 0, 2, -1, 1, Q("40 mm")),
    Sketcher.Constraint("DistanceY", -1, 1, 0, 2, Q("103 mm")),
])
pocket17 = body.newObject("PartDesign::Pocket", "Pocket016")
pocket17.Profile = sketch19
pocket17.Type = "UpToFirst"
pocket17.Reversed = True

# Sketch on XZ plane
sketch20 = body.newObject("Sketcher::SketchObject", "Sketch019")
sketch20.AttachmentSupport = (doc.getObject("XZ_Plane"), [""])
sketch20.MapMode = "FlatFace"
sketch20.AttachmentOffset = App.Placement(App.Vector(0, 0, -36), App.Rotation())
add_polygon(sketch20, [(-58, 3), (-58, 0), (-55, 0), (-55, 3)])  # lines 0-3
add_polygon(sketch20, [(55, 3), (55, 0), (58, 0), (58, 3)])  # lines 4-7
sketch20.addConstraint([
    Sketcher.Constraint("Vertical", 0),
    Sketcher.Constraint("Horizontal", 1),
    Sketcher.Constraint("Vertical", 2),
    Sketcher.Constraint("Horizontal", 3),
    Sketcher.Constraint("Vertical", 4),
    Sketcher.Constraint("Horizontal", 5),
    Sketcher.Constraint("Vertical", 6),
    Sketcher.Constraint("Horizontal", 7),
    Sketcher.Constraint("Symmetric", 1, 2, 4, 2, -1, 1),
    Sketcher.Constraint("Symmetric", 0, 2, 5, 2, -2),
    Sketcher.Constraint("Horizontal", 3, 2, 6, 2),
    Sketcher.Constraint("Equal", 7, 0),
    Sketcher.Constraint("DistanceX", 1, 1, 1, 2, Q("3 mm")),
    Sketcher.Constraint("DistanceX", 0, 2, -1, 1, Q("58 mm")),
])
pocket18 = body.newObject("PartDesign::Pocket", "Pocket017")
pocket18.Profile = sketch20
pocket18.Length = 5
pocket18.Reversed = True

# Sketch on XZ plane
sketch21 = body.newObject("Sketcher::SketchObject", "Sketch020")
sketch21.AttachmentSupport = (doc.getObject("XZ_Plane"), [""])
sketch21.MapMode = "FlatFace"
sketch21.AttachmentOffset = App.Placement(App.Vector(0, 0, -52), App.Rotation())
sketch21.addGeometry([
    Part.Circle(App.Vector(-52.9, 119.3, 0), App.Vector(0, 0, 1), 5.2),  # 0
    Part.Circle(App.Vector(-52.9, 119.3, 0), App.Vector(0, 0, 1), 2.1),  # 1
    Part.Circle(App.Vector(-52.9, 89.3, 0), App.Vector(0, 0, 1), 5.1),  # 2
    Part.Circle(App.Vector(-52.9, 89.3, 0), App.Vector(0, 0, 1), 2.1),  # 3
    Part.Circle(App.Vector(-52.9, 59.3, 0), App.Vector(0, 0, 1), 5.2),  # 4
    Part.Circle(App.Vector(-52.9, 59.3, 0), App.Vector(0, 0, 1), 2.2),  # 5
    Part.Circle(App.Vector(-52.9, 29.3, 0), App.Vector(0, 0, 1), 5.2),  # 6
    Part.Circle(App.Vector(-52.9, 29.3, 0), App.Vector(0, 0, 1), 2.1),  # 7
    Part.Circle(App.Vector(52.9, 119.3, 0), App.Vector(0, 0, 1), 5.2),  # 8
    Part.Circle(App.Vector(52.9, 119.3, 0), App.Vector(0, 0, 1), 2.1),  # 9
    Part.Circle(App.Vector(52.9, 89.3, 0), App.Vector(0, 0, 1), 5.2),  # 10
    Part.Circle(App.Vector(52.9, 89.3, 0), App.Vector(0, 0, 1), 2.1),  # 11
    Part.Circle(App.Vector(52.9, 59.3, 0), App.Vector(0, 0, 1), 5.2),  # 12
    Part.Circle(App.Vector(52.9, 59.3, 0), App.Vector(0, 0, 1), 2.2),  # 13
    Part.Circle(App.Vector(52.9, 29.3, 0), App.Vector(0, 0, 1), 5.2),  # 14
    Part.Circle(App.Vector(52.9, 29.3, 0), App.Vector(0, 0, 1), 2.1),  # 15
], False)
sketch21.addConstraint([
    Sketcher.Constraint("Coincident", 1, 3, 0, 3),
    Sketcher.Constraint("Coincident", 3, 3, 2, 3),
    Sketcher.Constraint("Coincident", 5, 3, 4, 3),
    Sketcher.Constraint("Coincident", 7, 3, 6, 3),
    Sketcher.Constraint("Coincident", 9, 3, 8, 3),
    Sketcher.Constraint("Coincident", 11, 3, 10, 3),
    Sketcher.Constraint("Coincident", 13, 3, 12, 3),
    Sketcher.Constraint("Coincident", 15, 3, 14, 3),
    Sketcher.Constraint("Equal", 1, 3),
    Sketcher.Constraint("Equal", 0, 4),
    Sketcher.Constraint("Equal", 4, 6),
    Sketcher.Constraint("Equal", 3, 7),
    Sketcher.Constraint("Equal", 6, 8),
    Sketcher.Constraint("Equal", 7, 9),
    Sketcher.Constraint("Equal", 8, 10),
    Sketcher.Constraint("Equal", 9, 11),
    Sketcher.Constraint("Equal", 10, 12),
    Sketcher.Constraint("Equal", 12, 14),
    Sketcher.Constraint("Equal", 11, 15),
    Sketcher.Constraint("Symmetric", 0, 3, 8, 3, -2),
    Sketcher.Constraint("Symmetric", 2, 3, 10, 3, -2),
    Sketcher.Constraint("Symmetric", 4, 3, 12, 3, -2),
    Sketcher.Constraint("Symmetric", 6, 3, 14, 3, -2),
    Sketcher.Constraint("Vertical", 1, 3, 2, 3),
    Sketcher.Constraint("Vertical", 3, 3, 4, 3),
    Sketcher.Constraint("Vertical", 5, 3, 6, 3),
    Sketcher.Constraint("Diameter", 0, Q("10.3 mm")),
    Sketcher.Constraint("Diameter", 1, Q("4.3 mm")),
    Sketcher.Constraint("DistanceY", 2, 3, 0, 3, Q("30 mm")),
    Sketcher.Constraint("DistanceY", 4, 3, 2, 3, Q("30 mm")),
    Sketcher.Constraint("DistanceY", 6, 3, 4, 3, Q("30 mm")),
    Sketcher.Constraint("DistanceY", -1, 1, 0, 3, Q("119.3 mm")),
    Sketcher.Constraint("DistanceX", 0, 3, 8, 3, Q("105.7 mm")),
    Sketcher.Constraint("Diameter", 13, Q("4.313161 mm")),
    Sketcher.Constraint("Diameter", 2, Q("10.185246 mm")),
    Sketcher.Constraint("Diameter", 5, Q("4.316397 mm")),
])
pad3 = body.newObject("PartDesign::Pad", "Pad002")
pad3.Profile = sketch21
pad3.Length = 21

# Sketch on XZ plane
sketch22 = body.newObject("Sketcher::SketchObject", "Sketch021")
sketch22.AttachmentSupport = (doc.getObject("XZ_Plane"), [""])
sketch22.MapMode = "FlatFace"
sketch22.AttachmentOffset = App.Placement(App.Vector(0, 0, -52), App.Rotation())
sketch22.addGeometry(Part.Circle(App.Vector(-52.9, 29.3, 0), App.Vector(0, 0, 1), 2.1), False)
sketch22.addConstraint([
    Sketcher.Constraint("Diameter", 0, Q("4.3 mm")),
    Sketcher.Constraint("DistanceY", -1, 1, 0, 3, Q("29.3 mm")),
    Sketcher.Constraint("DistanceX", 0, 3, -1, 1, Q("52.85 mm")),
])
pocket19 = body.newObject("PartDesign::Pocket", "Pocket018")
pocket19.Profile = sketch22
pocket19.Length = 16
pocket19.Reversed = True

# Sketch on XZ plane
sketch23 = body.newObject("Sketcher::SketchObject", "Sketch022")
sketch23.AttachmentSupport = (doc.getObject("XZ_Plane"), [""])
sketch23.MapMode = "FlatFace"
sketch23.AttachmentOffset = App.Placement(App.Vector(0, 0, -52), App.Rotation())
sketch23.addGeometry(Part.Circle(App.Vector(-52.9, 59.3, 0), App.Vector(0, 0, 1), 2.2), False)
sketch23.addConstraint([
    Sketcher.Constraint("DistanceY", -1, 1, 0, 3, Q("59.3 mm")),
    Sketcher.Constraint("DistanceX", 0, 3, -1, 1, Q("52.85 mm")),
    Sketcher.Constraint("Diameter", 0, Q("4.316397 mm")),
])
pocket20 = body.newObject("PartDesign::Pocket", "Pocket019")
pocket20.Profile = sketch23
pocket20.Length = 21
pocket20.Reversed = True

# Sketch on XZ plane
sketch24 = body.newObject("Sketcher::SketchObject", "Sketch023")
sketch24.AttachmentSupport = (doc.getObject("XZ_Plane"), [""])
sketch24.MapMode = "FlatFace"
sketch24.AttachmentOffset = App.Placement(App.Vector(0, 0, -52), App.Rotation())
sketch24.addGeometry(Part.Circle(App.Vector(-52.9, 89.3, 0), App.Vector(0, 0, 1), 2.1), False)
sketch24.addConstraint([
    Sketcher.Constraint("Diameter", 0, Q("4.3 mm")),
    Sketcher.Constraint("DistanceY", -1, 1, 0, 3, Q("89.3 mm")),
    Sketcher.Constraint("DistanceX", 0, 3, -1, 1, Q("52.85 mm")),
])
pocket21 = body.newObject("PartDesign::Pocket", "Pocket020")
pocket21.Profile = sketch24
pocket21.Length = 16
pocket21.Reversed = True

# Sketch on XZ plane
sketch25 = body.newObject("Sketcher::SketchObject", "Sketch024")
sketch25.AttachmentSupport = (doc.getObject("XZ_Plane"), [""])
sketch25.MapMode = "FlatFace"
sketch25.AttachmentOffset = App.Placement(App.Vector(0, 0, -52), App.Rotation())
sketch25.addGeometry(Part.Circle(App.Vector(-52.9, 119.3, 0), App.Vector(0, 0, 1), 2.1), False)
sketch25.addConstraint([
    Sketcher.Constraint("Diameter", 0, Q("4.3 mm")),
    Sketcher.Constraint("DistanceY", -1, 1, 0, 3, Q("119.3 mm")),
    Sketcher.Constraint("DistanceX", 0, 3, -1, 1, Q("52.85 mm")),
])
pocket22 = body.newObject("PartDesign::Pocket", "Pocket021")
pocket22.Profile = sketch25
pocket22.Length = 16
pocket22.Reversed = True

# Sketch on XZ plane
sketch26 = body.newObject("Sketcher::SketchObject", "Sketch025")
sketch26.AttachmentSupport = (doc.getObject("XZ_Plane"), [""])
sketch26.MapMode = "FlatFace"
sketch26.AttachmentOffset = App.Placement(App.Vector(0, 0, -52), App.Rotation())
sketch26.addGeometry(Part.Circle(App.Vector(52.9, 119.3, 0), App.Vector(0, 0, 1), 2.1), False)
sketch26.addConstraint([
    Sketcher.Constraint("Diameter", 0, Q("4.3 mm")),
    Sketcher.Constraint("DistanceY", -1, 1, 0, 3, Q("119.3 mm")),
    Sketcher.Constraint("DistanceX", -1, 1, 0, 3, Q("52.85 mm")),
])
pocket23 = body.newObject("PartDesign::Pocket", "Pocket022")
pocket23.Profile = sketch26
pocket23.Length = 16
pocket23.Reversed = True

# Sketch on XZ plane
sketch27 = body.newObject("Sketcher::SketchObject", "Sketch026")
sketch27.AttachmentSupport = (doc.getObject("XZ_Plane"), [""])
sketch27.MapMode = "FlatFace"
sketch27.AttachmentOffset = App.Placement(App.Vector(0, 0, -52), App.Rotation())
sketch27.addGeometry(Part.Circle(App.Vector(52.9, 89.3, 0), App.Vector(0, 0, 1), 2.1), False)
sketch27.addConstraint([
    Sketcher.Constraint("Diameter", 0, Q("4.3 mm")),
    Sketcher.Constraint("DistanceY", -1, 1, 0, 3, Q("89.3 mm")),
    Sketcher.Constraint("DistanceX", -1, 1, 0, 3, Q("52.85 mm")),
])
pocket24 = body.newObject("PartDesign::Pocket", "Pocket023")
pocket24.Profile = sketch27
pocket24.Length = 16
pocket24.Reversed = True

# Sketch on XZ plane
sketch28 = body.newObject("Sketcher::SketchObject", "Sketch027")
sketch28.AttachmentSupport = (doc.getObject("XZ_Plane"), [""])
sketch28.MapMode = "FlatFace"
sketch28.AttachmentOffset = App.Placement(App.Vector(0, 0, -52), App.Rotation())
sketch28.addGeometry(Part.Circle(App.Vector(52.9, 59.3, 0), App.Vector(0, 0, 1), 2.2), False)
sketch28.addConstraint([
    Sketcher.Constraint("DistanceY", -1, 1, 0, 3, Q("59.3 mm")),
    Sketcher.Constraint("Diameter", 0, Q("4.313161 mm")),
    Sketcher.Constraint("DistanceX", -1, 1, 0, 3, Q("52.85 mm")),
])
pocket25 = body.newObject("PartDesign::Pocket", "Pocket024")
pocket25.Profile = sketch28
pocket25.Length = 21
pocket25.Reversed = True

# Sketch on XZ plane
sketch29 = body.newObject("Sketcher::SketchObject", "Sketch028")
sketch29.AttachmentSupport = (doc.getObject("XZ_Plane"), [""])
sketch29.MapMode = "FlatFace"
sketch29.AttachmentOffset = App.Placement(App.Vector(0, 0, -52), App.Rotation())
sketch29.addGeometry(Part.Circle(App.Vector(52.9, 29.3, 0), App.Vector(0, 0, 1), 2.1), False)
sketch29.addConstraint([
    Sketcher.Constraint("Diameter", 0, Q("4.3 mm")),
    Sketcher.Constraint("DistanceY", -1, 1, 0, 3, Q("29.3 mm")),
    Sketcher.Constraint("DistanceX", -1, 1, 0, 3, Q("52.85 mm")),
])
pocket26 = body.newObject("PartDesign::Pocket", "Pocket025")
pocket26.Profile = sketch29
pocket26.Length = 16
pocket26.Reversed = True

doc.recompute()
